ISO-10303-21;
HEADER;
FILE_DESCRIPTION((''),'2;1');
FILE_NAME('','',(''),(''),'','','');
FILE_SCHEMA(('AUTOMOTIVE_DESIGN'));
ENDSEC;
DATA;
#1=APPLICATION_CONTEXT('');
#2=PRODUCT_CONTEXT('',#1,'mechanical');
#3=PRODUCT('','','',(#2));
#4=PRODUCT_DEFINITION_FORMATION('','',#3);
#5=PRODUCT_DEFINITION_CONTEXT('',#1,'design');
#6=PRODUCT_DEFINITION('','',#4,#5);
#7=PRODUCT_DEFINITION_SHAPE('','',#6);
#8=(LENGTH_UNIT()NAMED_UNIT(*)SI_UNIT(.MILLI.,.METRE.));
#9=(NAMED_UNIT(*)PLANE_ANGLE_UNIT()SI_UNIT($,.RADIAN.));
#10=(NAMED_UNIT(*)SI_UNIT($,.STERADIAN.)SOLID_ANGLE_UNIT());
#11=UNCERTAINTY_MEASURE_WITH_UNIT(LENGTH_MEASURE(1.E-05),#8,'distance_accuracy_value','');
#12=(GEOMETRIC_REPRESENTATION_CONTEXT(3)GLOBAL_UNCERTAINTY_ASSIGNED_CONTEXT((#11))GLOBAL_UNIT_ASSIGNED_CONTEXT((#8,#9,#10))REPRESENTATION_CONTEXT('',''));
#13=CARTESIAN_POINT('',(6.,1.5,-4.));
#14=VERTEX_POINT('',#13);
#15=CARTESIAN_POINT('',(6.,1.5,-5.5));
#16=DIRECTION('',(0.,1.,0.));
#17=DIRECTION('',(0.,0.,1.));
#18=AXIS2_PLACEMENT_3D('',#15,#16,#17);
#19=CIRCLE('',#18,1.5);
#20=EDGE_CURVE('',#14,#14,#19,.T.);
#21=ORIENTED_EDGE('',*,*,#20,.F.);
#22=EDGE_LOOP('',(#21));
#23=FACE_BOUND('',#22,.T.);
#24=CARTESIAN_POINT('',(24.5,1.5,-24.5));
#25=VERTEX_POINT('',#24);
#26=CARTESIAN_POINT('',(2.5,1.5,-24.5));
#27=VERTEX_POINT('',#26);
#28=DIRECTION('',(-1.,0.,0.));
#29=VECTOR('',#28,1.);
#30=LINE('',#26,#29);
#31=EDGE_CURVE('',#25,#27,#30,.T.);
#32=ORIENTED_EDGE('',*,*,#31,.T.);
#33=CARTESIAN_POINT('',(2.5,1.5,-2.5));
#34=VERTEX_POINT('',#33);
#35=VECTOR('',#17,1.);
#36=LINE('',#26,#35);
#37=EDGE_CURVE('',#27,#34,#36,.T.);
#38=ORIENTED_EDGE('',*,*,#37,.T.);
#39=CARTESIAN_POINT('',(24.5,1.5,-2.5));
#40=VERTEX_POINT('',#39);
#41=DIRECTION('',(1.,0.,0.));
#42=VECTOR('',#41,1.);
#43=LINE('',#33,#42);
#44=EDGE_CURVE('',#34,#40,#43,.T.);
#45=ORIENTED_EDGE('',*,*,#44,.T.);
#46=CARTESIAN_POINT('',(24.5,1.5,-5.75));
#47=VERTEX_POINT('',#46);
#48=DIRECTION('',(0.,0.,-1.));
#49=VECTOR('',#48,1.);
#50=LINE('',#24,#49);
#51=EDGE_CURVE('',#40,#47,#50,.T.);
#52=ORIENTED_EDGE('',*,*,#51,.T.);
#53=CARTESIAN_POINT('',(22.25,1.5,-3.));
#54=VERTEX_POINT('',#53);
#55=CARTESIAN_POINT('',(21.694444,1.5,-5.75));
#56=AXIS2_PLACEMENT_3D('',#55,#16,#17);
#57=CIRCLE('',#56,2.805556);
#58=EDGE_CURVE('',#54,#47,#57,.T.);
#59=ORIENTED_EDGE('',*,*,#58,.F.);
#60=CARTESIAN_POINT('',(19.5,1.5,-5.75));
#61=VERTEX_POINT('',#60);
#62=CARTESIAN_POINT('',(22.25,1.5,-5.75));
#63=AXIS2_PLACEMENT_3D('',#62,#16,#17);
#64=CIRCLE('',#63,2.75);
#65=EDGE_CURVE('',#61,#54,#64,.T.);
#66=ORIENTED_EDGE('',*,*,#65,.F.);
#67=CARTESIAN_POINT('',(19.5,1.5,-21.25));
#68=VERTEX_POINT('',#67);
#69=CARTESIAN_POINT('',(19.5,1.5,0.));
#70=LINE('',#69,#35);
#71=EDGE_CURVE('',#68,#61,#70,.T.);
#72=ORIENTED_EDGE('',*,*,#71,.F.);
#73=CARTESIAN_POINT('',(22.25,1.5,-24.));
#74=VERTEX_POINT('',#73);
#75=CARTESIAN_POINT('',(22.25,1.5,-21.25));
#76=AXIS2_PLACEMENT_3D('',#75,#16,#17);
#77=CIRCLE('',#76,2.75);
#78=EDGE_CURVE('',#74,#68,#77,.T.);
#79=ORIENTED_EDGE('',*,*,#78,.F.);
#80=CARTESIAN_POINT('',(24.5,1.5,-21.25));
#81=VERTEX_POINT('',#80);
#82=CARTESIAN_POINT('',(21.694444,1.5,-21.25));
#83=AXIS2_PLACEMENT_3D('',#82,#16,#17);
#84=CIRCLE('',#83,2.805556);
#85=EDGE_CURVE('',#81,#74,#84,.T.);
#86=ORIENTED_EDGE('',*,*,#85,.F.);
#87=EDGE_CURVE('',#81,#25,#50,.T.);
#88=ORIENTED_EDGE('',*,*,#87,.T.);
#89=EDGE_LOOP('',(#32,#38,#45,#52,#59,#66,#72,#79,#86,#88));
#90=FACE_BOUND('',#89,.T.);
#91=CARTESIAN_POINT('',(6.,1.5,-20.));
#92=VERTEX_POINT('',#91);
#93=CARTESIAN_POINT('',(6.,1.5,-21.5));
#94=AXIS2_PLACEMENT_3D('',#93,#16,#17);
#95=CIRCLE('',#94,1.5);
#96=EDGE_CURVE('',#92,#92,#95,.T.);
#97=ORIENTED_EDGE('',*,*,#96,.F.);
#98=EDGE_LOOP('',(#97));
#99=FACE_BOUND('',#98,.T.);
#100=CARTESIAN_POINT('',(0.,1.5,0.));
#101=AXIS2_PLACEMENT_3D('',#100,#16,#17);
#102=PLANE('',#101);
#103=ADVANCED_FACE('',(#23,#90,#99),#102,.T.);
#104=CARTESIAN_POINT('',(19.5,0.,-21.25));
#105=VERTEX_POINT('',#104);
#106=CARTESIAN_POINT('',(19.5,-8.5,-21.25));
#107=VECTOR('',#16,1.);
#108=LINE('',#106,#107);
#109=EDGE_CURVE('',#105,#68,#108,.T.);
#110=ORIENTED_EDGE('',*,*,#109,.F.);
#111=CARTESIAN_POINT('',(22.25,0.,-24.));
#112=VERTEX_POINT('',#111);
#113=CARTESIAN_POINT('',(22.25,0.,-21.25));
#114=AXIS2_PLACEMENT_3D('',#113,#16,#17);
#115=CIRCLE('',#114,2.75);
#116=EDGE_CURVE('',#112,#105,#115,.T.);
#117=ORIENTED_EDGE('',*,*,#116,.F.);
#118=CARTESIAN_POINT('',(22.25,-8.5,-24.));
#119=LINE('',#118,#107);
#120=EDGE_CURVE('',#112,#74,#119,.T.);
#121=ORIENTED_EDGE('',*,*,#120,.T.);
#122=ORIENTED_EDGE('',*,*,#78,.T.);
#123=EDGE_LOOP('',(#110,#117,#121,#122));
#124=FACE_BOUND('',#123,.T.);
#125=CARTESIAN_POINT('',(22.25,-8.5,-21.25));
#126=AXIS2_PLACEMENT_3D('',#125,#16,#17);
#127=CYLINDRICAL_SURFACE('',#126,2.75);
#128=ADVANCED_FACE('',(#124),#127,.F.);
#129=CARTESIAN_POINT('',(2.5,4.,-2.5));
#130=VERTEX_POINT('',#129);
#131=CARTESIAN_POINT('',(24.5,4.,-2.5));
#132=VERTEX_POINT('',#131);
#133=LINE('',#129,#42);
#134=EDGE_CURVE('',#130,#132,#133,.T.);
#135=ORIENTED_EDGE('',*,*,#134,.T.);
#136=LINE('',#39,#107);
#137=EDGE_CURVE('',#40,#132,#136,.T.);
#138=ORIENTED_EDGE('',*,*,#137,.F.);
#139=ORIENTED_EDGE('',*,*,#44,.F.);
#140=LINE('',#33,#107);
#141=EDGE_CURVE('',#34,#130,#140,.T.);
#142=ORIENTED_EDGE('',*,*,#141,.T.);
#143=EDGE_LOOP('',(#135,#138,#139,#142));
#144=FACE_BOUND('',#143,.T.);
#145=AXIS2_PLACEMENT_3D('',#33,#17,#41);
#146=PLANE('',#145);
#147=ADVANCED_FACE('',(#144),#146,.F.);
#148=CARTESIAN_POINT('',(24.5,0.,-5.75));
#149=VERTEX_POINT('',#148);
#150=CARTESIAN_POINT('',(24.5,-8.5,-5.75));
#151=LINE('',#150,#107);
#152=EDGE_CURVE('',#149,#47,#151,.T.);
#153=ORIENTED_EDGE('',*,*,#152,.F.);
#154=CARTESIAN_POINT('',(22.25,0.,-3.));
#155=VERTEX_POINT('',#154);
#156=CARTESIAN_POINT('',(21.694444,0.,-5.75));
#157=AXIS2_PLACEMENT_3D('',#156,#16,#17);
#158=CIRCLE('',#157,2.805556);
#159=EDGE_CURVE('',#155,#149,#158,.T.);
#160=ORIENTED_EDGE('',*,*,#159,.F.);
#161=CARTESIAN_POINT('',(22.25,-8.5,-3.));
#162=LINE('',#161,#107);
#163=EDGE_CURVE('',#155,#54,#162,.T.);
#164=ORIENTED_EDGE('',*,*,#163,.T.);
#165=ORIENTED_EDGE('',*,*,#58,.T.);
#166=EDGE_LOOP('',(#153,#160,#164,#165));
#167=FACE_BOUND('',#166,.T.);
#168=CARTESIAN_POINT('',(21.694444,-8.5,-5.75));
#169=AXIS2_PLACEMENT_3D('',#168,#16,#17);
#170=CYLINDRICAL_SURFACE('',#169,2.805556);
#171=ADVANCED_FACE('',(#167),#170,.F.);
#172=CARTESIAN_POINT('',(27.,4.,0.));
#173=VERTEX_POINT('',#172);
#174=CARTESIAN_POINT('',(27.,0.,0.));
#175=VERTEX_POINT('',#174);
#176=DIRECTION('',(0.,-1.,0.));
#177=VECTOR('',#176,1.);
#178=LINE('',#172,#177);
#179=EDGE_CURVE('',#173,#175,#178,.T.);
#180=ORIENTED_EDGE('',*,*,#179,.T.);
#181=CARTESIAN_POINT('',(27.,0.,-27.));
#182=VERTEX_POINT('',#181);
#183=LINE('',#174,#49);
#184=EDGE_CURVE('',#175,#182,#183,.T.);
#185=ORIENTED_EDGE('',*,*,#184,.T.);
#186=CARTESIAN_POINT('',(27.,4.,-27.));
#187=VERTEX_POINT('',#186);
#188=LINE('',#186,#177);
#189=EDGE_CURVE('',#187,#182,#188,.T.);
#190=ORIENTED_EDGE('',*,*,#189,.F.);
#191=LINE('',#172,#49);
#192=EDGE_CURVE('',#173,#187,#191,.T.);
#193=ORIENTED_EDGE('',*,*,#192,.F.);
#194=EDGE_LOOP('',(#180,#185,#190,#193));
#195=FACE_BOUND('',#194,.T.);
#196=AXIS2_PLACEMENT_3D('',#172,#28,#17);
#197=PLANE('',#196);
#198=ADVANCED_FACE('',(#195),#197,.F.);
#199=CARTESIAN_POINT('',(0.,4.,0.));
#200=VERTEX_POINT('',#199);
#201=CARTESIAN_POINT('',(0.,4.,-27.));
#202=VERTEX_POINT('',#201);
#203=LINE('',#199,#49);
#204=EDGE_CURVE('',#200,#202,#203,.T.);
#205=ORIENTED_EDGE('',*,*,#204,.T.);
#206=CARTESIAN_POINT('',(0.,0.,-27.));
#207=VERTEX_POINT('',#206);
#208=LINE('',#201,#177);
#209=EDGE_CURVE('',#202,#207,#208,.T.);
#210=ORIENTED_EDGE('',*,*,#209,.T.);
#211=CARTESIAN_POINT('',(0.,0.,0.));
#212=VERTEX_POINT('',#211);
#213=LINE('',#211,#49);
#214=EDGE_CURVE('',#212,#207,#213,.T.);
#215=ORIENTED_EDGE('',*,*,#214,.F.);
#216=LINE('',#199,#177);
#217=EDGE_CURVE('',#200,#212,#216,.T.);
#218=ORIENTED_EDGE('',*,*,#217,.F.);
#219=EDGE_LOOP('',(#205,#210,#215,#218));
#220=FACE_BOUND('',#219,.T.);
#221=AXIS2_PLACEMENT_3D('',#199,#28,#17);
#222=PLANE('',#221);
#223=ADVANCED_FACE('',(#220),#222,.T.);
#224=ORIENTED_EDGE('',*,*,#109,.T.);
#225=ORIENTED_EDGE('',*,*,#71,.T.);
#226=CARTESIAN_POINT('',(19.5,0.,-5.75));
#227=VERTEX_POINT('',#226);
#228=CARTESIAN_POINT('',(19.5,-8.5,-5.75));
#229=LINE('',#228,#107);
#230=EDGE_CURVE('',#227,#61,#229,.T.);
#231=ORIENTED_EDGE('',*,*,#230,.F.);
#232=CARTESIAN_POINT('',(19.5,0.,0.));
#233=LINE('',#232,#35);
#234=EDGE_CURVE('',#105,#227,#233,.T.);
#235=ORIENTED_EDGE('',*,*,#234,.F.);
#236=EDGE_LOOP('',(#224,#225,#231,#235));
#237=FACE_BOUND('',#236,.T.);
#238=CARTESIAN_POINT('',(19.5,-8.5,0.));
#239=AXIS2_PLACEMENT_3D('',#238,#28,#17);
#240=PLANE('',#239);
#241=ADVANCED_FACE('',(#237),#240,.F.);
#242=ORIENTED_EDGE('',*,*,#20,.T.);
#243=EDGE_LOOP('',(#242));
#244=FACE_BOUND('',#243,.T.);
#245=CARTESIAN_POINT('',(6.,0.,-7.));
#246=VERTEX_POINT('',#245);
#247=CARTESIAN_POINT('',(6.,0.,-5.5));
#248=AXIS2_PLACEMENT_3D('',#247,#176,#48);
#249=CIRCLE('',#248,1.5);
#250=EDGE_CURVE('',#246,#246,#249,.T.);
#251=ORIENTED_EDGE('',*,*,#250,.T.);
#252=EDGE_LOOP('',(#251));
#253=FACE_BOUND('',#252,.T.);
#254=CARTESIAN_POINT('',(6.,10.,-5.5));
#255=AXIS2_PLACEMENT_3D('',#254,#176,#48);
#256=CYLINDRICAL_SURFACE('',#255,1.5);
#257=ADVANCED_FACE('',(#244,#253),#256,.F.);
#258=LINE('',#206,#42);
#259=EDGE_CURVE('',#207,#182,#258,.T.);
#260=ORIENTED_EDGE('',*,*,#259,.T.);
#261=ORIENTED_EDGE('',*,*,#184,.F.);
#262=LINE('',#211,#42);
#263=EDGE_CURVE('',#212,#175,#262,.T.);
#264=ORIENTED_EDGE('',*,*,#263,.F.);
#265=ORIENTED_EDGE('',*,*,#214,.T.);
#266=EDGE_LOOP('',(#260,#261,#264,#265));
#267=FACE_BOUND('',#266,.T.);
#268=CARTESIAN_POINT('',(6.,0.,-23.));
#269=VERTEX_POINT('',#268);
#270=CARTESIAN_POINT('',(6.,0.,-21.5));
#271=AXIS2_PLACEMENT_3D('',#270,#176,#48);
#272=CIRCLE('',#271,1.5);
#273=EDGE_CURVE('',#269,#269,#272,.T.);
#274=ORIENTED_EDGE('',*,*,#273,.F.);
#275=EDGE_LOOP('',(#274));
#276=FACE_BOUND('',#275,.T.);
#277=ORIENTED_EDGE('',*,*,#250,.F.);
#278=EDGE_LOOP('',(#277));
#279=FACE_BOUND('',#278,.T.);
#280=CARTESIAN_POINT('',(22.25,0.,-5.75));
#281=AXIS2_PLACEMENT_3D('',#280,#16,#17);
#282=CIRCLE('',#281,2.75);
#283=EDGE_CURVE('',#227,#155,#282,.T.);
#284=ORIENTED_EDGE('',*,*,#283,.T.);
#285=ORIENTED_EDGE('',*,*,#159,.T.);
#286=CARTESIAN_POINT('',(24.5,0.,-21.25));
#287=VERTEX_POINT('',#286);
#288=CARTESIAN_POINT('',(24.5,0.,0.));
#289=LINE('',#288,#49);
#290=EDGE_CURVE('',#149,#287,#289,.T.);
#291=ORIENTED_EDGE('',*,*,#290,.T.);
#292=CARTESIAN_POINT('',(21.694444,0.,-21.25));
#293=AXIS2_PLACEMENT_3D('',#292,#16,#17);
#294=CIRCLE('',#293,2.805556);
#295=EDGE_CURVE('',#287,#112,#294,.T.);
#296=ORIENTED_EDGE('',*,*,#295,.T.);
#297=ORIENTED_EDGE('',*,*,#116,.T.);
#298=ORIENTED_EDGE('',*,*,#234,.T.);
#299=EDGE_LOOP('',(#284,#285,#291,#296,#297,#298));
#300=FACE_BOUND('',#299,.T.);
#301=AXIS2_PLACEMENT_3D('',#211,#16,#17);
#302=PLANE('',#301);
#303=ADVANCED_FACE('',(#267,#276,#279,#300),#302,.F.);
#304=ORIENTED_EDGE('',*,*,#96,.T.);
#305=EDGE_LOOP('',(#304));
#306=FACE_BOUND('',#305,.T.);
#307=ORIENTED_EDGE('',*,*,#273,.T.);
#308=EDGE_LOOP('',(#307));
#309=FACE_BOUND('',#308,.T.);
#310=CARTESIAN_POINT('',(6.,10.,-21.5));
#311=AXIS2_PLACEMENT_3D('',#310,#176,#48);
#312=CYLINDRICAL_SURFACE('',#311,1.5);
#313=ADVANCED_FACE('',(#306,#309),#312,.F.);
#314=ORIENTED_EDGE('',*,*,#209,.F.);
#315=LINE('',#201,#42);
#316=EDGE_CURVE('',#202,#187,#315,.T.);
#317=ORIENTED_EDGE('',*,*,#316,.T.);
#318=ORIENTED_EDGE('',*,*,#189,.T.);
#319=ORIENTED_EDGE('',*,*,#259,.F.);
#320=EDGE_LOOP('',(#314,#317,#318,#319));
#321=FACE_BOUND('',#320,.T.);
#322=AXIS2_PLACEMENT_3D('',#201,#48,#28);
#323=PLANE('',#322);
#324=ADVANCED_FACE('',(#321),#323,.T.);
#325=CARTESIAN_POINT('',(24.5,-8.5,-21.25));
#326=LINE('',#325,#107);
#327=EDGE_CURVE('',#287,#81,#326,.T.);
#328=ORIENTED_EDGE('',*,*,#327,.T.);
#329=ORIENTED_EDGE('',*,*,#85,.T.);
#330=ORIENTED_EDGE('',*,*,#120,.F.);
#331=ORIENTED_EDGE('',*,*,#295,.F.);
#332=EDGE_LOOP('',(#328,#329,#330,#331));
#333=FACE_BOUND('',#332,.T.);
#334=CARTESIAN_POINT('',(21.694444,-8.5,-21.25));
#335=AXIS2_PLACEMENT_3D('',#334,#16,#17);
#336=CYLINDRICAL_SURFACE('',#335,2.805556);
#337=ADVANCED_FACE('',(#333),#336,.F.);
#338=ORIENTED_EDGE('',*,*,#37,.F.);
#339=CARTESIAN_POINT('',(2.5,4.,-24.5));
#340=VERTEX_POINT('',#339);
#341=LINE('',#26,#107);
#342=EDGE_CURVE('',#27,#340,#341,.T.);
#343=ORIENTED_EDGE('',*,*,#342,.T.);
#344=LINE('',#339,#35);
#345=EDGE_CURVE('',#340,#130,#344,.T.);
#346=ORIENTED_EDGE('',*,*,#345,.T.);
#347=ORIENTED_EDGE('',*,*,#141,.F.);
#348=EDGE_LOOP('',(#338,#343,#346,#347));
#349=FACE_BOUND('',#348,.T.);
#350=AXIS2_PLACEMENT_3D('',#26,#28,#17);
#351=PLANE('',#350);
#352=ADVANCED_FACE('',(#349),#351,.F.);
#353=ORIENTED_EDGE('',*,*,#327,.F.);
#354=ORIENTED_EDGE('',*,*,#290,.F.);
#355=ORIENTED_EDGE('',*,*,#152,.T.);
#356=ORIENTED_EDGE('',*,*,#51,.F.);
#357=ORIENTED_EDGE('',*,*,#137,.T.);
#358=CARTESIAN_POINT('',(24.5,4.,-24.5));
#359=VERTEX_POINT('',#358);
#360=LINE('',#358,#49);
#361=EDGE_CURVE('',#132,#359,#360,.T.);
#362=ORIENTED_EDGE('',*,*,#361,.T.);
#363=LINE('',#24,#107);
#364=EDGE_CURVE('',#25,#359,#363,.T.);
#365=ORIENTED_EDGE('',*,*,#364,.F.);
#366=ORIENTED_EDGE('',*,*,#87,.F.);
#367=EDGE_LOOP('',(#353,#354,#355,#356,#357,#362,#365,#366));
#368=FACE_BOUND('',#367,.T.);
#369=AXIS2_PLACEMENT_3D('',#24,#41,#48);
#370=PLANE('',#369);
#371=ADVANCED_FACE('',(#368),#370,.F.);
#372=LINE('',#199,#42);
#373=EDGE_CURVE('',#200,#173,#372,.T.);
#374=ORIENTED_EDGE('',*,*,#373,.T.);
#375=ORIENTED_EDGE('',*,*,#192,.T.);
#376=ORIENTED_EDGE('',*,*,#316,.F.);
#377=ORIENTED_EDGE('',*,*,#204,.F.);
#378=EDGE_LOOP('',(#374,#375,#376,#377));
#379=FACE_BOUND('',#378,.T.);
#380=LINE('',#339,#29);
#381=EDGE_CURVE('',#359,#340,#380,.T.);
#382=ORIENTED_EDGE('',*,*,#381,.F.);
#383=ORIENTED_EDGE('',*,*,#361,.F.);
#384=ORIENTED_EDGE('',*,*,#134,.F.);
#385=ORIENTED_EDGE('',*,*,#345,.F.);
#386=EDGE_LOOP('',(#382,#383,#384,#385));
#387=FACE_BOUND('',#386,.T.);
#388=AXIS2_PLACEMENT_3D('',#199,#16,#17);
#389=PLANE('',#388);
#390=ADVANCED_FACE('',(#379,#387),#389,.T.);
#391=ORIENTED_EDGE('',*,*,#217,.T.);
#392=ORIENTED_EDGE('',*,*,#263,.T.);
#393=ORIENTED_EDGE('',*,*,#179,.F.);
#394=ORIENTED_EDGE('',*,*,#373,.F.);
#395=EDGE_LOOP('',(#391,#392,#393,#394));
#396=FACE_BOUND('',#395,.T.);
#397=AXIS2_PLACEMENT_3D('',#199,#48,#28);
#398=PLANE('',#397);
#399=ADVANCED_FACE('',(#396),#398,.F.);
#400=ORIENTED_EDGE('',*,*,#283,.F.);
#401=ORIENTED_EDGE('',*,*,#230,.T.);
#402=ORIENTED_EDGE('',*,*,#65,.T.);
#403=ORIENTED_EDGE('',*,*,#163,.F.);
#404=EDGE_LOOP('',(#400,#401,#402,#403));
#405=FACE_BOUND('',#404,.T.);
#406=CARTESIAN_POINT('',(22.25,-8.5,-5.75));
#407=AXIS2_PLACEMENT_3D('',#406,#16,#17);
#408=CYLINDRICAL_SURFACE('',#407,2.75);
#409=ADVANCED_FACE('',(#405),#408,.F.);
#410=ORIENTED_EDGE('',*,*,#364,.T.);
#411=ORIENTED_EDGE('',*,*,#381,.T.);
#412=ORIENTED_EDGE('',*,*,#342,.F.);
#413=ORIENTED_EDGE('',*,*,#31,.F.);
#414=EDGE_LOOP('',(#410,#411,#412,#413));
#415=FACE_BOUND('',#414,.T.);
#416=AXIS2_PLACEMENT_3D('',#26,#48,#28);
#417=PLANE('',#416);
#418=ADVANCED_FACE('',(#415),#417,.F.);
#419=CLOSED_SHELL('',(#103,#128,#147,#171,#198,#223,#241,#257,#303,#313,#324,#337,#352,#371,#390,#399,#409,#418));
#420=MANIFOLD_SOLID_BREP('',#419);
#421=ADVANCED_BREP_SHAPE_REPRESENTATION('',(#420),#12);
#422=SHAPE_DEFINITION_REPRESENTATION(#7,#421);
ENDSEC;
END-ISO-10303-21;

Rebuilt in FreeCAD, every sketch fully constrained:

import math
import FreeCAD as App
import Part
import Sketcher


def add_polygon(sketch, points):
    """Adds a closed chain of lines whose ends are joined by coincident constraints."""
    first, n = sketch.GeometryCount, len(points)
    for a, b in zip(points, points[1:] + points[:1]):
        sketch.addGeometry(Part.LineSegment(App.Vector(*a, 0), App.Vector(*b, 0)), False)
    for i in range(n):
        sketch.addConstraint(Sketcher.Constraint("Coincident", first + i, 2, first + (i + 1) % n, 1))

doc = App.newDocument("Part")
body = doc.addObject("PartDesign::Body", "Body")

# Sketch on XZ plane
sketch1 = body.newObject("Sketcher::SketchObject", "Sketch")
sketch1.AttachmentSupport = (doc.getObject("XZ_Plane"), [""])
sketch1.MapMode = "FlatFace"
add_polygon(sketch1, [(0, -27), (0, 0), (27, 0), (27, -27)])  # lines 0-3
sketch1.addConstraint(Sketcher.Constraint("Vertical", 0))
sketch1.addConstraint(Sketcher.Constraint("Horizontal", 1))
sketch1.addConstraint(Sketcher.Constraint("Vertical", 2))
sketch1.addConstraint(Sketcher.Constraint("Horizontal", 3))
sketch1.addConstraint(Sketcher.Constraint("Coincident", 0, 2, -1, 1))
sketch1.addConstraint(Sketcher.Constraint("Equal", 3, 0))
sketch1.addConstraint(Sketcher.Constraint("DistanceX", 1, 1, 1, 2, 27.0))
pad1 = body.newObject("PartDesign::Pad", "Pad")
pad1.Profile = sketch1
pad1.Length = 4
pad1.Reversed = True

# Sketch on XZ plane
sketch2 = body.newObject("Sketcher::SketchObject", "Sketch001")
sketch2.AttachmentSupport = (doc.getObject("XZ_Plane"), [""])
sketch2.MapMode = "FlatFace"
sketch2.AttachmentOffset = App.Placement(App.Vector(0, 0, -4), App.Rotation())
add_polygon(sketch2, [(2, -24), (2, -2), (24, -2), (24, -24)])  # lines 0-3
sketch2.addConstraint(Sketcher.Constraint("Vertical", 0))
sketch2.addConstraint(Sketcher.Constraint("Horizontal", 1))
sketch2.addConstraint(Sketcher.Constraint("Vertical", 2))
sketch2.addConstraint(Sketcher.Constraint("Horizontal", 3))
sketch2.addConstraint(Sketcher.Constraint("Equal", 3, 0))
sketch2.addConstraint(Sketcher.Constraint("DistanceX", 1, 1, 1, 2, 22.0))
sketch2.addConstraint(Sketcher.Constraint("DistanceX", -1, 1, 0, 2, 2.5))
sketch2.addConstraint(Sketcher.Constraint("DistanceY", 0, 2, -1, 1, 2.5))
pocket1 = body.newObject("PartDesign::Pocket", "Pocket")
pocket1.Profile = sketch2
pocket1.Length = 2.5
pocket1.Reversed = True

# Sketch on XZ plane
sketch3 = body.newObject("Sketcher::SketchObject", "Sketch002")
sketch3.AttachmentSupport = (doc.getObject("XZ_Plane"), [""])
sketch3.MapMode = "FlatFace"
sketch3.addGeometry(Part.Circle(App.Vector(6, -21.5, 0), App.Vector(0, 0, 1), 1.5), False)
sketch3.addGeometry(Part.Circle(App.Vector(6, -5.5, 0), App.Vector(0, 0, 1), 1.5), False)
sketch3.addConstraint(Sketcher.Constraint("Equal", 0, 1))
sketch3.addConstraint(Sketcher.Constraint("Vertical", 0, 3, 1, 3))
sketch3.addConstraint(Sketcher.Constraint("Diameter", 0, 3.0))
sketch3.addConstraint(Sketcher.Constraint("DistanceX", -1, 1, 0, 3, 6.0))
sketch3.addConstraint(Sketcher.Constraint("DistanceY", 0, 3, 1, 3, 16.0))
sketch3.addConstraint(Sketcher.Constraint("DistanceY", 0, 3, -1, 1, 21.5))
pocket2 = body.newObject("PartDesign::Pocket", "Pocket001")
pocket2.Profile = sketch3
pocket2.Length = 10

# Sketch on XZ plane
sketch4 = body.newObject("Sketcher::SketchObject", "Sketch003")
sketch4.AttachmentSupport = (doc.getObject("XZ_Plane"), [""])
sketch4.MapMode = "FlatFace"
sketch4.AttachmentOffset = App.Placement(App.Vector(0, 0, -1.5), App.Rotation())
sketch4.addGeometry(Part.ArcOfCircle(Part.Circle(App.Vector(22.3, -21.2, 0), App.Vector(0, 0, 1), 2.8), math.radians(-180), math.radians(-90)), False)
sketch4.addGeometry(Part.LineSegment(App.Vector(19.5, -21.2, 0), App.Vector(19.5, -5.8, 0)), False)
sketch4.addGeometry(Part.ArcOfCircle(Part.Circle(App.Vector(22.3, -5.8, 0), App.Vector(0, 0, 1), 2.8), math.radians(90), math.radians(180)), False)
sketch4.addGeometry(Part.ArcOfCircle(Part.Circle(App.Vector(21.7, -5.8, 0), App.Vector(0, 0, 1), 2.8), math.radians(0), math.radians(79)), False)
sketch4.addGeometry(Part.LineSegment(App.Vector(24.5, -5.8, 0), App.Vector(24.5, -21.2, 0)), False)
sketch4.addGeometry(Part.ArcOfCircle(Part.Circle(App.Vector(21.7, -21.2, 0), App.Vector(0, 0, 1), 2.8), math.radians(-79), math.radians(0)), False)
sketch4.addConstraint(Sketcher.Constraint("Tangent", 0, 1, 1, 1))
sketch4.addConstraint(Sketcher.Constraint("Tangent", 1, 2, 2, 2))
sketch4.addConstraint(Sketcher.Constraint("Coincident", 2, 1, 3, 2))
sketch4.addConstraint(Sketcher.Constraint("Tangent", 3, 1, 4, 1))
sketch4.addConstraint(Sketcher.Constraint("Tangent", 4, 2, 5, 2))
sketch4.addConstraint(Sketcher.Constraint("Coincident", 5, 1, 0, 2))
sketch4.addConstraint(Sketcher.Constraint("Vertical", 1))
sketch4.addConstraint(Sketcher.Constraint("Vertical", 4))
sketch4.addConstraint(Sketcher.Constraint("Equal", 0, 2))
sketch4.addConstraint(Sketcher.Constraint("Equal", 3, 5))
sketch4.addConstraint(Sketcher.Constraint("Horizontal", 2, 3, 3, 3))
sketch4.addConstraint(Sketcher.Constraint("Horizontal", 0, 3, 5, 3))
sketch4.addConstraint(Sketcher.Constraint("Vertical", 0, 3, 2, 1))
sketch4.addConstraint(Sketcher.Constraint("Radius", 0, 2.75))
sketch4.addConstraint(Sketcher.Constraint("DistanceY", 1, 1, 1, 2, 15.5))
sketch4.addConstraint(Sketcher.Constraint("DistanceY", 2, 1, -1, 1, 3.0))
sketch4.addConstraint(Sketcher.Constraint("DistanceX", 1, 2, 3, 1, 5.0))
sketch4.addConstraint(Sketcher.Constraint("DistanceX", -1, 1, 0, 1, 19.5))
pocket3 = body.newObject("PartDesign::Pocket", "Pocket002")
pocket3.Profile = sketch4
pocket3.Length = 10
pocket3.Reversed = True

doc.recompute()
